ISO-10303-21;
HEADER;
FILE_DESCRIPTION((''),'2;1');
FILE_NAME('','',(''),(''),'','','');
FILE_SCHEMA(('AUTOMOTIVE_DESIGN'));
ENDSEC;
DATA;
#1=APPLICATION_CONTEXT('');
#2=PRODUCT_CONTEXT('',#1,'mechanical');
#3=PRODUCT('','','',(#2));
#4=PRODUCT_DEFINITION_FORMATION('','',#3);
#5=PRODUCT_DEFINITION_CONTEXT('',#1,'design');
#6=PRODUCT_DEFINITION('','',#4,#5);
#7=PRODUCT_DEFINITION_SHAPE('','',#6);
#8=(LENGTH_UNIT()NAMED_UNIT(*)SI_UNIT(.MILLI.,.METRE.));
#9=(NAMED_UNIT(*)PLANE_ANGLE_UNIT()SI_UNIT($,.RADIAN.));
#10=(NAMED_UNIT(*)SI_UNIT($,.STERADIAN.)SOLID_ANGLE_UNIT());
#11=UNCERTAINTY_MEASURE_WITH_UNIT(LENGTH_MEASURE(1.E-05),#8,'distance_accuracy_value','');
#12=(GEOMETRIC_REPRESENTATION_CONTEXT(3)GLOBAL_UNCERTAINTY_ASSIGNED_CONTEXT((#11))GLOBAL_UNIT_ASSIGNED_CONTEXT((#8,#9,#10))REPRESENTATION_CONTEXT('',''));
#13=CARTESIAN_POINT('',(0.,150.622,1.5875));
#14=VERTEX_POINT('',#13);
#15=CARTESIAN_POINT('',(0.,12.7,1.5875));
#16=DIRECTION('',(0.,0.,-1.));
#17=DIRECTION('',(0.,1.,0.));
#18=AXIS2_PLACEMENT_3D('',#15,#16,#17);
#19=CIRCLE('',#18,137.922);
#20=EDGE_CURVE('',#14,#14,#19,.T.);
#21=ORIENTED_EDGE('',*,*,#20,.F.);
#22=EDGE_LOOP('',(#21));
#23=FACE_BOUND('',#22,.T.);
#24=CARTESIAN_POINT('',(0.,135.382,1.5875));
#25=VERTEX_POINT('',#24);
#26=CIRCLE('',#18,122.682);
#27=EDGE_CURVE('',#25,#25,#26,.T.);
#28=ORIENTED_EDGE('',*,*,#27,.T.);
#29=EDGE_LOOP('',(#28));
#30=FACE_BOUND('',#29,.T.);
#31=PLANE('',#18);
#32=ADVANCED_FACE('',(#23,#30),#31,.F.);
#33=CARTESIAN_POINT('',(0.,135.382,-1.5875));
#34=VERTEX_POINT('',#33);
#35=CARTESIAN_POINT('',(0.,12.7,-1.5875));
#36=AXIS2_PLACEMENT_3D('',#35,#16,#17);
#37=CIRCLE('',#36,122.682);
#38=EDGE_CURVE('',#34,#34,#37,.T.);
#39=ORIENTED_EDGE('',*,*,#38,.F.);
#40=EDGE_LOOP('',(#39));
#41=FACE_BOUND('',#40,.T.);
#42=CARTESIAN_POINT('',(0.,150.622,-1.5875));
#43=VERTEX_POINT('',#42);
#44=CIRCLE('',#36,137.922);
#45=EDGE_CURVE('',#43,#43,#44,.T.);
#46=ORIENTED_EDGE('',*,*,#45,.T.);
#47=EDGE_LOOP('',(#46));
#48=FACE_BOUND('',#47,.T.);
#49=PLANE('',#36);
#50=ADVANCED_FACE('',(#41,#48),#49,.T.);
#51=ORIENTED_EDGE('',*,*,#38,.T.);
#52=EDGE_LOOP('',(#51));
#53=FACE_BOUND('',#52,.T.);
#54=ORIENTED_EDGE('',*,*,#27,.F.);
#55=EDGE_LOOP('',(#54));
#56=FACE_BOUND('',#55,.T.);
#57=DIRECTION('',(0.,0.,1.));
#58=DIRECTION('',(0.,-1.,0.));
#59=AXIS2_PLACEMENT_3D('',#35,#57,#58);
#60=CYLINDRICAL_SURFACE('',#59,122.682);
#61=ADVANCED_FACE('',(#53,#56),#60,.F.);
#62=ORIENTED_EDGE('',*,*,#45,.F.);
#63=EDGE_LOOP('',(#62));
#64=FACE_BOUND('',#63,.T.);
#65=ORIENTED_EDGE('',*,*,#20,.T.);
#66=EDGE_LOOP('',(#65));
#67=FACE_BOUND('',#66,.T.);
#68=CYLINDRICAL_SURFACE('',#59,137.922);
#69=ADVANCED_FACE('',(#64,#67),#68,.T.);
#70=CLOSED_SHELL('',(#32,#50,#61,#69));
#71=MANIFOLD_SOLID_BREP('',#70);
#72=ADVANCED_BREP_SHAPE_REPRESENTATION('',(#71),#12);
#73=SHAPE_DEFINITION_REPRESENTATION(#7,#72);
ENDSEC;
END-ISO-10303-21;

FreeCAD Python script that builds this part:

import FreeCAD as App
import Part
import Sketcher

V = App.Vector
Q = App.Units.Quantity

doc = App.newDocument("Part")
body = doc.addObject("PartDesign::Body", "Body")

# Sketch on XY plane
sketch1 = body.newObject("Sketcher::SketchObject", "Sketch")
sketch1.AttachmentSupport = (doc.getObject("XY_Plane"), [""])
sketch1.MapMode = "FlatFace"
sketch1.addGeometry(Part.Circle(V(0, 13, 0), V(0, 0, 1), 138), False)
sketch1.addGeometry(Part.Circle(V(0, 13, 0), V(0, 0, 1), 123), False)
sketch1.addConstraint(Sketcher.Constraint("Coincident", 1, 3, 0, 3))
sketch1.addConstraint(Sketcher.Constraint("PointOnObject", 0, 3, -2))
sketch1.addConstraint(Sketcher.Constraint("Diameter", 0, Q("10.86 in")))
sketch1.addConstraint(Sketcher.Constraint("Diameter", 1, Q("9.66 in")))
sketch1.addConstraint(Sketcher.Constraint("DistanceY", -1, 1, 0, 3, Q("0.5 in")))
pad1 = body.newObject("PartDesign::Pad", "Pad")
pad1.Profile = sketch1
pad1.Length = Q("0.125 in")
pad1.Midplane = True

doc.recompute()
